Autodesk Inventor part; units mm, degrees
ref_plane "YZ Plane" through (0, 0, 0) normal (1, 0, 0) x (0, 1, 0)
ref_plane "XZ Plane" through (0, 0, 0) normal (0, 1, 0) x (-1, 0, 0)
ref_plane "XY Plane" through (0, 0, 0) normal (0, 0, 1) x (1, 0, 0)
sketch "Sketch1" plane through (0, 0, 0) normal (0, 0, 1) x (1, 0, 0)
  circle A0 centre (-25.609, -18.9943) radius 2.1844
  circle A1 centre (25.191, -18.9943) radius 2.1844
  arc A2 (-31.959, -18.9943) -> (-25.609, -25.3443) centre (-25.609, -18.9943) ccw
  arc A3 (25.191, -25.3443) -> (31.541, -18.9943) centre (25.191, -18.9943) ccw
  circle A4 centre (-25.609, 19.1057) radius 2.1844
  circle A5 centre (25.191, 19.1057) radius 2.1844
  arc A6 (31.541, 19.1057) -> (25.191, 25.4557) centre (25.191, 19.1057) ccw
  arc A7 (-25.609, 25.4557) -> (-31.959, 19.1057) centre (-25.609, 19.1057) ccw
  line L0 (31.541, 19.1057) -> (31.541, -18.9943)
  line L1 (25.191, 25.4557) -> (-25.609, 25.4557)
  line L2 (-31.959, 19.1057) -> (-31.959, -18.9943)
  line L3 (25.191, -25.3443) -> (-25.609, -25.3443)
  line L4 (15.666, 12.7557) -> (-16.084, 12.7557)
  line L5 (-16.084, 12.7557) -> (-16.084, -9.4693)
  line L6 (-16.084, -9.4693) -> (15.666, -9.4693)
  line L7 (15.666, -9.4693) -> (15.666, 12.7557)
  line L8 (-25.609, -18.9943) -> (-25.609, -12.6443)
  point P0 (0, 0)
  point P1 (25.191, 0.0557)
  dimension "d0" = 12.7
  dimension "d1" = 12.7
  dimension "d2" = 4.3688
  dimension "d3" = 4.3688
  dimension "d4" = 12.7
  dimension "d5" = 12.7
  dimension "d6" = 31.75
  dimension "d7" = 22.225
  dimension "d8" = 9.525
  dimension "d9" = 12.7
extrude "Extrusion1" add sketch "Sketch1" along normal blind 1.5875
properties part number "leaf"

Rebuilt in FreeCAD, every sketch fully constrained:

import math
import FreeCAD as App
import Part
import Sketcher
from FreeCAD import Vector
Q = App.Units.Quantity

doc = App.newDocument("Part")
body = doc.addObject("PartDesign::Body", "Body")

# Sketch on XY plane
sketch1 = body.newObject("Sketcher::SketchObject", "Sketch")
sketch1.AttachmentSupport = (doc.getObject("XY_Plane"), [""])
sketch1.MapMode = "FlatFace"
sketch1.addGeometry([
    Part.LineSegment(Vector(-31.959, 19.1057, 0), Vector(-31.959, -18.9943, 0)),  # 0
    Part.ArcOfCircle(Part.Circle(Vector(-25.609, -18.9943, 0), Vector(0, 0, 1), 6.35), math.radians(180), math.radians(270)),  # 1
    Part.LineSegment(Vector(-25.609, -25.3443, 0), Vector(25.191, -25.3443, 0)),  # 2
    Part.ArcOfCircle(Part.Circle(Vector(25.191, -18.9943, 0), Vector(0, 0, 1), 6.35), math.radians(-90), math.radians(0)),  # 3
    Part.LineSegment(Vector(31.541, -18.9943, 0), Vector(31.541, 19.1057, 0)),  # 4
    Part.ArcOfCircle(Part.Circle(Vector(25.191, 19.1057, 0), Vector(0, 0, 1), 6.35), math.radians(0), math.radians(90)),  # 5
    Part.LineSegment(Vector(25.191, 25.4557, 0), Vector(-25.609, 25.4557, 0)),  # 6
    Part.ArcOfCircle(Part.Circle(Vector(-25.609, 19.1057, 0), Vector(0, 0, 1), 6.35), math.radians(90), math.radians(180)),  # 7
    Part.Circle(Vector(-25.609, -18.9943, 0), Vector(0, 0, 1), 2.1844),  # 8
    Part.Circle(Vector(25.191, -18.9943, 0), Vector(0, 0, 1), 2.1844),  # 9
    Part.Circle(Vector(-25.609, 19.1057, 0), Vector(0, 0, 1), 2.1844),  # 10
    Part.LineSegment(Vector(-16.084, 12.7557, 0), Vector(15.666, 12.7557, 0)),  # 11
    Part.LineSegment(Vector(15.666, 12.7557, 0), Vector(15.666, -9.4693, 0)),  # 12
    Part.LineSegment(Vector(15.666, -9.4693, 0), Vector(-16.084, -9.4693, 0)),  # 13
    Part.LineSegment(Vector(-16.084, -9.4693, 0), Vector(-16.084, 12.7557, 0)),  # 14
    Part.Circle(Vector(25.191, 19.1057, 0), Vector(0, 0, 1), 2.1844),  # 15
], False)
sketch1.addConstraint([
    Sketcher.Constraint("Tangent", 0, 2, 1, 1),
    Sketcher.Constraint("Tangent", 1, 2, 2, 1),
    Sketcher.Constraint("Tangent", 2, 2, 3, 1),
    Sketcher.Constraint("Tangent", 3, 2, 4, 1),
    Sketcher.Constraint("Tangent", 4, 2, 5, 1),
    Sketcher.Constraint("Tangent", 5, 2, 6, 1),
    Sketcher.Constraint("Tangent", 6, 2, 7, 1),
    Sketcher.Constraint("Tangent", 7, 2, 0, 1),
    Sketcher.Constraint("Coincident", 11, 2, 12, 1),
    Sketcher.Constraint("Coincident", 12, 2, 13, 1),
    Sketcher.Constraint("Coincident", 13, 2, 14, 1),
    Sketcher.Constraint("Coincident", 14, 2, 11, 1),
    Sketcher.Constraint("Vertical", 0),
    Sketcher.Constraint("Horizontal", 2),
    Sketcher.Constraint("Vertical", 4),
    Sketcher.Constraint("Horizontal", 6),
    Sketcher.Constraint("Horizontal", 11),
    Sketcher.Constraint("Vertical", 12),
    Sketcher.Constraint("Horizontal", 13),
    Sketcher.Constraint("Vertical", 14),
    Sketcher.Constraint("Coincident", 8, 3, 1, 3),
    Sketcher.Constraint("Coincident", 9, 3, 3, 3),
    Sketcher.Constraint("Coincident", 10, 3, 7, 3),
    Sketcher.Constraint("Coincident", 15, 3, 5, 3),
    Sketcher.Constraint("Equal", 1, 3),
    Sketcher.Constraint("Equal", 3, 5),
    Sketcher.Constraint("Equal", 5, 7),
    Sketcher.Constraint("Equal", 8, 9),
    Sketcher.Constraint("Equal", 9, 10),
    Sketcher.Constraint("Equal", 10, 15),
    Sketcher.Constraint("Radius", 1, Q("0.25 in")),
    Sketcher.Constraint("Diameter", 8, Q("0.172 in")),
    Sketcher.Constraint("DistanceX", 11, 1, 11, 2, Q("1.25 in")),
    Sketcher.Constraint("DistanceY", 11, 2, 5, 2, Q("0.5 in")),
    Sketcher.Constraint("DistanceX", 2, 1, 2, 2, Q("2 in")),
    Sketcher.Constraint("DistanceY", 12, 2, 12, 1, Q("0.875 in")),
    Sketcher.Constraint("DistanceY", 3, 3, 11, 2, Q("1.25 in")),
    Sketcher.Constraint("DistanceX", 11, 2, 5, 3, Q("0.375 in")),
    Sketcher.Constraint("DistanceY", 1, 3, -1, 1, Q("0.7478 in")),
    Sketcher.Constraint("DistanceX", 1, 3, -1, 1, 25.609),
])
pad1 = body.newObject("PartDesign::Pad", "Pad")
pad1.Profile = sketch1
pad1.Length = Q("0.0625 in")

doc.recompute()
